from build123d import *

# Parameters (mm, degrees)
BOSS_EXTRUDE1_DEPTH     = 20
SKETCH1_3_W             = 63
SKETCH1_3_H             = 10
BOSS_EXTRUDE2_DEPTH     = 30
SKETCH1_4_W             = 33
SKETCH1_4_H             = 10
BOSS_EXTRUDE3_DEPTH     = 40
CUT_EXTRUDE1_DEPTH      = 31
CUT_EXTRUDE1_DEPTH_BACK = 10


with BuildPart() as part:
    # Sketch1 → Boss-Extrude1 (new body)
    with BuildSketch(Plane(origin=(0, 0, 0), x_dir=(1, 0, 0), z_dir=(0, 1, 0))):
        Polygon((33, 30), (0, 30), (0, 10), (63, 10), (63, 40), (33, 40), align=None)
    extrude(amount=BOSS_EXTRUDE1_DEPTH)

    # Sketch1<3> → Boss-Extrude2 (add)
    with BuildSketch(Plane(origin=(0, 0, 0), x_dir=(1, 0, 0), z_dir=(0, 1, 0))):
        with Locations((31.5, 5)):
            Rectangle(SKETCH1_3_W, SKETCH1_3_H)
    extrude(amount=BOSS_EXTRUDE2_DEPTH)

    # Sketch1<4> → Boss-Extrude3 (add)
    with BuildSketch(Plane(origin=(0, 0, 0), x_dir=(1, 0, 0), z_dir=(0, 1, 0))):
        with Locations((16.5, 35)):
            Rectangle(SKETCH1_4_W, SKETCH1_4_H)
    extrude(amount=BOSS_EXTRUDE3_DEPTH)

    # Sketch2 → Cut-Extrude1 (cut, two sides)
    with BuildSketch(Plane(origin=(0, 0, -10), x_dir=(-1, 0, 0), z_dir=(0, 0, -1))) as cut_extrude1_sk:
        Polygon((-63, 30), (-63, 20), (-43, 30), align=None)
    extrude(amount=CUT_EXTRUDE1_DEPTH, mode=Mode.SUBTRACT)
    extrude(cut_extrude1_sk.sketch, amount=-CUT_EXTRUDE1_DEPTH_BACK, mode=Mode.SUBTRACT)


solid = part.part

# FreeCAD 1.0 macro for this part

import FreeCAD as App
import Part
import Sketcher
from FreeCAD import Vector
Q = App.Units.Quantity

doc = App.newDocument("Part")
body = doc.addObject("PartDesign::Body", "Body")

# Sketch on XZ plane
sketch1 = doc.addObject("Sketcher::SketchObject", "Sketch")
body.addObject(sketch1)
sketch1.AttachmentSupport = (doc.XZ_Plane, [""])
sketch1.MapMode = "FlatFace"
sketch1.addGeometry([
    Part.LineSegment(Vector(33, -30, 0), Vector(0, -30, 0)),  # 0
    Part.LineSegment(Vector(0, -30, 0), Vector(0, -10, 0)),  # 1
    Part.LineSegment(Vector(0, -10, 0), Vector(63, -10, 0)),  # 2
    Part.LineSegment(Vector(63, -10, 0), Vector(63, -40, 0)),  # 3
    Part.LineSegment(Vector(63, -40, 0), Vector(33, -40, 0)),  # 4
    Part.LineSegment(Vector(33, -40, 0), Vector(33, -30, 0)),  # 5
], False)
sketch1.addConstraint([
    Sketcher.Constraint("Coincident", 0, 2, 1, 1),
    Sketcher.Constraint("Coincident", 1, 2, 2, 1),
    Sketcher.Constraint("Coincident", 2, 2, 3, 1),
    Sketcher.Constraint("Coincident", 3, 2, 4, 1),
    Sketcher.Constraint("Coincident", 4, 2, 5, 1),
    Sketcher.Constraint("Coincident", 5, 2, 0, 1),
    Sketcher.Constraint("Horizontal", 0),
    Sketcher.Constraint("Vertical", 1),
    Sketcher.Constraint("Horizontal", 2),
    Sketcher.Constraint("Vertical", 3),
    Sketcher.Constraint("Horizontal", 4),
    Sketcher.Constraint("Vertical", 5),
    Sketcher.Constraint("PointOnObject", 0, 2, -2),
    Sketcher.Constraint("Equal", 4, 3),
    Sketcher.Constraint("DistanceX", 0, 2, 0, 1, Q("33 mm")),
    Sketcher.Constraint("DistanceX", 2, 1, 2, 2, Q("63 mm")),
    Sketcher.Constraint("DistanceY", 1, 1, 1, 2, Q("20 mm")),
    Sketcher.Constraint("DistanceY", 0, 2, -1, 1, Q("30 mm")),
])
pad1 = doc.addObject("PartDesign::Pad", "Pad")
body.addObject(pad1)
pad1.Profile = sketch1
pad1.Length = 20
pad1.Reversed = True

# Sketch on XZ plane
sketch2 = doc.addObject("Sketcher::SketchObject", "Sketch001")
body.addObject(sketch2)
sketch2.AttachmentSupport = (doc.XZ_Plane, [""])
sketch2.MapMode = "FlatFace"
sketch2.addGeometry([
    Part.LineSegment(Vector(0, -10, 0), Vector(0, 0, 0)),
    Part.LineSegment(Vector(0, 0, 0), Vector(63, 0, 0)),
    Part.LineSegment(Vector(63, 0, 0), Vector(63, -10, 0)),
    Part.LineSegment(Vector(63, -10, 0), Vector(0, -10, 0)),
], False)
sketch2.addConstraint([
    Sketcher.Constraint("Coincident", 0, 2, 1, 1),
    Sketcher.Constraint("Coincident", 1, 2, 2, 1),
    Sketcher.Constraint("Coincident", 2, 2, 3, 1),
    Sketcher.Constraint("Coincident", 3, 2, 0, 1),
    Sketcher.Constraint("Vertical", 0),
    Sketcher.Constraint("Horizontal", 1),
    Sketcher.Constraint("Vertical", 2),
    Sketcher.Constraint("Horizontal", 3),
    Sketcher.Constraint("Coincident", 0, 2, -1, 1),
    Sketcher.Constraint("DistanceX", 1, 1, 1, 2, Q("63 mm")),
    Sketcher.Constraint("DistanceY", 0, 1, 0, 2, Q("10 mm")),
])
pad2 = doc.addObject("PartDesign::Pad", "Pad001")
body.addObject(pad2)
pad2.Profile = sketch2
pad2.Length = 30
pad2.Reversed = True

# Sketch on XZ plane
sketch3 = doc.addObject("Sketcher::SketchObject", "Sketch002")
body.addObject(sketch3)
sketch3.AttachmentSupport = (doc.XZ_Plane, [""])
sketch3.MapMode = "FlatFace"
sketch3.addGeometry([
    Part.LineSegment(Vector(0, -40, 0), Vector(0, -30, 0)),
    Part.LineSegment(Vector(0, -30, 0), Vector(33, -30, 0)),
    Part.LineSegment(Vector(33, -30, 0), Vector(33, -40, 0)),
    Part.LineSegment(Vector(33, -40, 0), Vector(0, -40, 0)),
], False)
sketch3.addConstraint([
    Sketcher.Constraint("Coincident", 0, 2, 1, 1),
    Sketcher.Constraint("Coincident", 1, 2, 2, 1),
    Sketcher.Constraint("Coincident", 2, 2, 3, 1),
    Sketcher.Constraint("Coincident", 3, 2, 0, 1),
    Sketcher.Constraint("Vertical", 0),
    Sketcher.Constraint("Horizontal", 1),
    Sketcher.Constraint("Vertical", 2),
    Sketcher.Constraint("Horizontal", 3),
    Sketcher.Constraint("PointOnObject", 0, 2, -2),
    Sketcher.Constraint("DistanceX", 1, 1, 1, 2, Q("33 mm")),
    Sketcher.Constraint("DistanceY", 0, 1, 0, 2, Q("10 mm")),
    Sketcher.Constraint("DistanceY", 0, 2, -1, 1, Q("30 mm")),
])
pad3 = doc.addObject("PartDesign::Pad", "Pad002")
body.addObject(pad3)
pad3.Profile = sketch3
pad3.Length = 40
pad3.Reversed = True

# Sketch on XY plane
sketch4 = doc.addObject("Sketcher::SketchObject", "Sketch003")
body.addObject(sketch4)
sketch4.AttachmentSupport = (doc.XY_Plane, [""])
sketch4.MapMode = "FlatFace"
sketch4.AttachmentOffset = App.Placement(Vector(0, 0, -10), App.Rotation())
sketch4.addGeometry([
    Part.LineSegment(Vector(63, 30, 0), Vector(63, 20, 0)),
    Part.LineSegment(Vector(63, 20, 0), Vector(43, 30, 0)),
    Part.LineSegment(Vector(43, 30, 0), Vector(63, 30, 0)),
], False)
sketch4.addConstraint([
    Sketcher.Constraint("Coincident", 0, 2, 1, 1),
    Sketcher.Constraint("Coincident", 1, 2, 2, 1),
    Sketcher.Constraint("Coincident", 2, 2, 0, 1),
    Sketcher.Constraint("Vertical", 0),
    Sketcher.Constraint("Horizontal", 2),
    Sketcher.Constraint("DistanceX", 2, 1, 2, 2, Q("20 mm")),
    Sketcher.Constraint("DistanceY", 0, 2, 0, 1, Q("10 mm")),
    Sketcher.Constraint("DistanceX", -1, 1, 0, 2, Q("63 mm")),
    Sketcher.Constraint("DistanceY", -1, 1, 0, 2, Q("20 mm")),
])
pocket1 = doc.addObject("PartDesign::Pocket", "Pocket")
body.addObject(pocket1)
pocket1.Profile = sketch4
pocket1.Type = "ThroughAll"
pocket1.Midplane = True

doc.recompute()
